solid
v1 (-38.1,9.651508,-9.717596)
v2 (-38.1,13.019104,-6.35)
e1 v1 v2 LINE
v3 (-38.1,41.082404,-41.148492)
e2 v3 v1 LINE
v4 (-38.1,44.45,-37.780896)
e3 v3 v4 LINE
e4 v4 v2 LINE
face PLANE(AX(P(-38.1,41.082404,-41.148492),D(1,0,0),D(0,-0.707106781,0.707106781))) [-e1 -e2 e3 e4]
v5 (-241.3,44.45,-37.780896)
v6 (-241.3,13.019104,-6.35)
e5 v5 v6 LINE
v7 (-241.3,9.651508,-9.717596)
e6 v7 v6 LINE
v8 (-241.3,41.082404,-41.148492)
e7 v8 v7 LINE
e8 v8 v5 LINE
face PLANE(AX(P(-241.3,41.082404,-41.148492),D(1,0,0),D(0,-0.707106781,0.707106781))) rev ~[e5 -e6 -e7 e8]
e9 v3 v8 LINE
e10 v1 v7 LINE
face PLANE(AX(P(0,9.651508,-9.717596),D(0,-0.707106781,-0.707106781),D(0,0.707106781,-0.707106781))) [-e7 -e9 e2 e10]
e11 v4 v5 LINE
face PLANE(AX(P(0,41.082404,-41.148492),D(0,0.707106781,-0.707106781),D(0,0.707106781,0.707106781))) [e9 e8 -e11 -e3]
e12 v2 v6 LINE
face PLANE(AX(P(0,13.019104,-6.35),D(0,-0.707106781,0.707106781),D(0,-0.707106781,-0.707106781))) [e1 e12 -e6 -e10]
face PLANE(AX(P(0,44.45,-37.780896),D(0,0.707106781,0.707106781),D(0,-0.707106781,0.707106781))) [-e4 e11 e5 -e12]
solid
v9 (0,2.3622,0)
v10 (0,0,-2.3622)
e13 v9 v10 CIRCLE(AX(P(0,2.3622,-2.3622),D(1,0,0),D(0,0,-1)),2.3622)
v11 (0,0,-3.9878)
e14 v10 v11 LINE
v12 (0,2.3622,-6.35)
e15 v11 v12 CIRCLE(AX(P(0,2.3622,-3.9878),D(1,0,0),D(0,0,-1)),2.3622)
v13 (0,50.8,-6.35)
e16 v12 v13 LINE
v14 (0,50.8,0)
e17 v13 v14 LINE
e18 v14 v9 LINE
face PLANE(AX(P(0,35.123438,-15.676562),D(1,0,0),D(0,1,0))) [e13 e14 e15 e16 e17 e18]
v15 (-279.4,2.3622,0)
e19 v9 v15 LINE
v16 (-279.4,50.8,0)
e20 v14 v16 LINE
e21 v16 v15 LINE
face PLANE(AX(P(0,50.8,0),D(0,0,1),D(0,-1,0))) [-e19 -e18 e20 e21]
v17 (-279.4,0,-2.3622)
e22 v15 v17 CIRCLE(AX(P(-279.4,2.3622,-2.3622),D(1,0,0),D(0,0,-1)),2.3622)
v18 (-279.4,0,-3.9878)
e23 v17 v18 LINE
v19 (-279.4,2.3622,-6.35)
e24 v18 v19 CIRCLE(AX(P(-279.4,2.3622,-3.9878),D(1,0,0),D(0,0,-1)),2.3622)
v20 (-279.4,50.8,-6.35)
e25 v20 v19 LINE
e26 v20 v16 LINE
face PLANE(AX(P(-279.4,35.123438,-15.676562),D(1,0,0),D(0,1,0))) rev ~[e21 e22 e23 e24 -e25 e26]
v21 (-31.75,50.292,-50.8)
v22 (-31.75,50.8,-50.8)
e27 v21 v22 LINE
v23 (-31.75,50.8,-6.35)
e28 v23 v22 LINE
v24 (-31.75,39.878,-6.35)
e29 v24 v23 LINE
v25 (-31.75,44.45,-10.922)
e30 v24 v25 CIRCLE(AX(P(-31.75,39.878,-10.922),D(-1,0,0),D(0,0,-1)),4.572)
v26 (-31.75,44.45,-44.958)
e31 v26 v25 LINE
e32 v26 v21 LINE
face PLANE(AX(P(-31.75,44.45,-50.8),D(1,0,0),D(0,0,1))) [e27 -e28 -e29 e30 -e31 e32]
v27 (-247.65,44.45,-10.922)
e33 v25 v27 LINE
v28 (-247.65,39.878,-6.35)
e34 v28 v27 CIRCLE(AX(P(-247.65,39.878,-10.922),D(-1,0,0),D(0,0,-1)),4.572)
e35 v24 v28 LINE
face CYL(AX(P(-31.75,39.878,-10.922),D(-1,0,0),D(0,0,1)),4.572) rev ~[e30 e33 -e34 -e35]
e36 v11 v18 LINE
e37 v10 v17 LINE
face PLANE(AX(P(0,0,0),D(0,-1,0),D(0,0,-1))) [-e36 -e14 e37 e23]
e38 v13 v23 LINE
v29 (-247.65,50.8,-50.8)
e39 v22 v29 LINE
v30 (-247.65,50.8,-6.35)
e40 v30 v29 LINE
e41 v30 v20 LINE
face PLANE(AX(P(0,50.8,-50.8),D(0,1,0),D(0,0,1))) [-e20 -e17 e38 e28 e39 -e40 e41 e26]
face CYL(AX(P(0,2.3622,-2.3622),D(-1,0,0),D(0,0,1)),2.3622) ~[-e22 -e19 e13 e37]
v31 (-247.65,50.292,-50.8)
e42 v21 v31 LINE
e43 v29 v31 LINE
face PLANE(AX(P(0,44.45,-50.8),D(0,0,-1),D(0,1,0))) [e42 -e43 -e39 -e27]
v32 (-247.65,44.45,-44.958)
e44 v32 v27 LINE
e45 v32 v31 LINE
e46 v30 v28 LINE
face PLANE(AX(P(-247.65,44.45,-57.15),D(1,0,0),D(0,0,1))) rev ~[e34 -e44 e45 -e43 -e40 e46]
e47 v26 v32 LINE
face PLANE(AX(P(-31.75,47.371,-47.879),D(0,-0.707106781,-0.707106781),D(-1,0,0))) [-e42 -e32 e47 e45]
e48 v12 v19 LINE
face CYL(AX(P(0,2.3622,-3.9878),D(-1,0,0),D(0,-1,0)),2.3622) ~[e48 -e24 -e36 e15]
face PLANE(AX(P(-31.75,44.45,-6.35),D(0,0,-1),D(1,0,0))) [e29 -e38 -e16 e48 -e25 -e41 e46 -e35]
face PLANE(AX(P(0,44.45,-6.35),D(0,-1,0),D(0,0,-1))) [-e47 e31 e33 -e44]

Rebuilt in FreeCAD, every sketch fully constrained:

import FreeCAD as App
import Part
import Sketcher
Q = App.Units.Quantity


def edges_at(feature, points):
    """Names of the edges that pass closest to the given points."""
    edges = feature.Shape.Edges
    near = lambda p: min(range(len(edges)), key=lambda i: edges[i].distToShape(Part.Vertex(*p))[0])
    return sorted({f"Edge{near(p) + 1}" for p in points})


def add_polygon(sketch, points):
    """Adds a closed chain of lines whose ends are joined by coincident constraints."""
    first, n = sketch.GeometryCount, len(points)
    for a, b in zip(points, points[1:] + points[:1]):
        sketch.addGeometry(Part.LineSegment(App.Vector(*a, 0), App.Vector(*b, 0)), False)
    for i in range(n):
        sketch.addConstraint(Sketcher.Constraint("Coincident", first + i, 2, first + (i + 1) % n, 1))

doc = App.newDocument("Part")
body = doc.addObject("PartDesign::Body", "Body")

# Sketch on YZ plane
sketch1 = body.newObject("Sketcher::SketchObject", "Sketch")
sketch1.AttachmentSupport = (doc.getObject("YZ_Plane"), [""])
sketch1.MapMode = "FlatFace"
add_polygon(sketch1, [(51, 0), (0, 0), (0, -6), (44, -6), (44, -51), (51, -51)])  # lines 0-5
sketch1.addConstraint(Sketcher.Constraint("Horizontal", 0))
sketch1.addConstraint(Sketcher.Constraint("Vertical", 1))
sketch1.addConstraint(Sketcher.Constraint("Horizontal", 2))
sketch1.addConstraint(Sketcher.Constraint("Vertical", 3))
sketch1.addConstraint(Sketcher.Constraint("Horizontal", 4))
sketch1.addConstraint(Sketcher.Constraint("Vertical", 5))
sketch1.addConstraint(Sketcher.Constraint("Coincident", 0, 2, -1, 1))
sketch1.addConstraint(Sketcher.Constraint("Equal", 4, 1))
sketch1.addConstraint(Sketcher.Constraint("Equal", 2, 3))
sketch1.addConstraint(Sketcher.Constraint("DistanceX", 0, 2, 0, 1, Q("2 in")))
sketch1.addConstraint(Sketcher.Constraint("DistanceX", 2, 1, 2, 2, Q("1.75 in")))
pad1 = body.newObject("PartDesign::Pad", "Pad")
pad1.Profile = sketch1
pad1.Length = Q("11 in")
pad1.Reversed = True
doc.recompute()

fillet = body.newObject("PartDesign::Fillet", "Fillet")
fillet.Base = (pad1, edges_at(pad1, [(-139.7, 0, -6.35), (-139.7, 0, 0)]))
fillet.Radius = Q("0.093 in")

# Sketch on XZ plane
sketch2 = body.newObject("Sketcher::SketchObject", "Sketch001")
sketch2.AttachmentSupport = (doc.getObject("XZ_Plane"), [""])
sketch2.MapMode = "FlatFace"
sketch2.AttachmentOffset = App.Placement(App.Vector(0, 0, -1.75 * 25.4), App.Rotation())
add_polygon(sketch2, [(-32, -6), (-32, -51), (0, -51), (0, -6)])  # lines 0-3
sketch2.addConstraint(Sketcher.Constraint("Vertical", 0))
sketch2.addConstraint(Sketcher.Constraint("Horizontal", 1))
sketch2.addConstraint(Sketcher.Constraint("Vertical", 2))
sketch2.addConstraint(Sketcher.Constraint("Horizontal", 3))
sketch2.addConstraint(Sketcher.Constraint("PointOnObject", 1, 2, -2))
sketch2.addConstraint(Sketcher.Constraint("DistanceY", 0, 2, -1, 1, Q("2 in")))
sketch2.addConstraint(Sketcher.Constraint("DistanceX", 1, 1, 1, 2, Q("1.25 in")))
sketch2.addConstraint(Sketcher.Constraint("DistanceY", 0, 2, 0, 1, Q("1.75 in")))
pocket1 = body.newObject("PartDesign::Pocket", "Pocket")
pocket1.Profile = sketch2
pocket1.Length = Q("1 in")

# Sketch on XZ plane
sketch3 = body.newObject("Sketcher::SketchObject", "Sketch002")
sketch3.AttachmentSupport = (doc.getObject("XZ_Plane"), [""])
sketch3.MapMode = "FlatFace"
sketch3.AttachmentOffset = App.Placement(App.Vector(0, 0, -1.75 * 25.4), App.Rotation())
add_polygon(sketch3, [(-279, -6), (-279, -57), (-248, -57), (-248, -6)])  # lines 0-3
sketch3.addConstraint(Sketcher.Constraint("Vertical", 0))
sketch3.addConstraint(Sketcher.Constraint("Horizontal", 1))
sketch3.addConstraint(Sketcher.Constraint("Vertical", 2))
sketch3.addConstraint(Sketcher.Constraint("Horizontal", 3))
sketch3.addConstraint(Sketcher.Constraint("DistanceY", 0, 2, 0, 1, Q("2 in")))
sketch3.addConstraint(Sketcher.Constraint("DistanceX", 0, 2, -1, 1, Q("11 in")))
sketch3.addConstraint(Sketcher.Constraint("DistanceX", 1, 1, 1, 2, Q("1.25 in")))
sketch3.addConstraint(Sketcher.Constraint("DistanceY", 0, 2, -1, 1, Q("2.25 in")))
pocket2 = body.newObject("PartDesign::Pocket", "Pocket001")
pocket2.Profile = sketch3
pocket2.Length = Q("1 in")
doc.recompute()

fillet2 = body.newObject("PartDesign::Fillet", "Fillet001")
fillet2.Base = (pocket2, edges_at(pocket2, [(-139.7, 44.45, -6.35)]))
fillet2.Radius = Q("0.18 in")
doc.recompute()

chamfer = body.newObject("PartDesign::Chamfer", "Chamfer")
chamfer.Base = (fillet2, edges_at(fillet2, [(-139.7, 44.45, -50.8)]))
chamfer.Size = Q("0.23 in")
body2 = doc.addObject("PartDesign::Body", "Body001")

# Sketch on YZ plane
sketch4 = body2.newObject("Sketcher::SketchObject", "Sketch003")
sketch4.AttachmentSupport = (doc.getObject("YZ_Plane001"), [""])
sketch4.MapMode = "FlatFace"
add_polygon(sketch4, [(44.5, -37.8), (13, -6.3), (9.7, -9.7), (41.1, -41.1)])  # lines 0-3
sketch4.addConstraint(Sketcher.Constraint("Perpendicular", 0, 1))
sketch4.addConstraint(Sketcher.Constraint("Perpendicular", 1, 2))
sketch4.addConstraint(Sketcher.Constraint("Perpendicular", 2, 3))
sketch4.addConstraint(Sketcher.Constraint("Angle", 0, Q("135 deg")))
sketch4.addConstraint(Sketcher.Constraint("Distance", 0, Q("1.75 in")))
sketch4.addConstraint(Sketcher.Constraint("DistanceY", 0, 2, -1, 1, Q("0.25 in")))
sketch4.addConstraint(Sketcher.Constraint("DistanceX", -1, 1, 3, 2, Q("1.75 in")))
sketch4.addConstraint(Sketcher.Constraint("Distance", 1, Q("0.1875 in")))
pad2 = body2.newObject("PartDesign::Pad", "Pad001")
pad2.Profile = sketch4
pad2.Length = Q("11 in")
pad2.Reversed = True

# Sketch on an angled plane
sketch5 = body2.newObject("Sketcher::SketchObject", "Sketch004")
sketch5.Placement = App.Placement(App.Vector(0, -0.033044, -0.033044), App.Rotation(App.Vector(1, 0, 0), App.Vector(0, -0.707106781, 0.707106781), App.Vector(0, -0.707106781, -0.707106781), "ZXY"))
add_polygon(sketch5, [(-279, -14), (-279, -58), (-241, -58), (-241, -14)])  # lines 0-3
sketch5.addConstraint(Sketcher.Constraint("Vertical", 0))
sketch5.addConstraint(Sketcher.Constraint("Horizontal", 1))
sketch5.addConstraint(Sketcher.Constraint("Vertical", 2))
sketch5.addConstraint(Sketcher.Constraint("Horizontal", 3))
sketch5.addConstraint(Sketcher.Constraint("DistanceX", 1, 1, 1, 2, Q("1.5 in")))
sketch5.addConstraint(Sketcher.Constraint("DistanceX", 0, 2, -1, 1, Q("11 in")))
sketch5.addConstraint(Sketcher.Constraint("DistanceY", 0, 2, 0, 1, Q("1.75 in")))
sketch5.addConstraint(Sketcher.Constraint("DistanceY", 0, 2, -1, 1, 58.146024))
pocket3 = body2.newObject("PartDesign::Pocket", "Pocket002")
pocket3.Profile = sketch5
pocket3.Length = Q("0.1875 in")

# Sketch on an angled plane
sketch6 = body2.newObject("Sketcher::SketchObject", "Sketch005")
sketch6.Placement = App.Placement(App.Vector(0, -0.033044, -0.033044), App.Rotation(App.Vector(1, 0, 0), App.Vector(0, -0.707106781, 0.707106781), App.Vector(0, -0.707106781, -0.707106781), "ZXY"))
add_polygon(sketch6, [(-38, -14), (-38, -58), (0, -58), (0, -14)])  # lines 0-3
sketch6.addConstraint(Sketcher.Constraint("Vertical", 0))
sketch6.addConstraint(Sketcher.Constraint("Horizontal", 1))
sketch6.addConstraint(Sketcher.Constraint("Vertical", 2))
sketch6.addConstraint(Sketcher.Constraint("Horizontal", 3))
sketch6.addConstraint(Sketcher.Constraint("PointOnObject", 1, 2, -2))
sketch6.addConstraint(Sketcher.Constraint("DistanceX", 1, 1, 1, 2, Q("1.5 in")))
sketch6.addConstraint(Sketcher.Constraint("DistanceY", 0, 2, 0, 1, Q("1.75 in")))
sketch6.addConstraint(Sketcher.Constraint("DistanceY", 0, 2, -1, 1, 58.146024))
pocket4 = body2.newObject("PartDesign::Pocket", "Pocket003")
pocket4.Profile = sketch6
pocket4.Length = Q("0.1875 in")

doc.recompute()
